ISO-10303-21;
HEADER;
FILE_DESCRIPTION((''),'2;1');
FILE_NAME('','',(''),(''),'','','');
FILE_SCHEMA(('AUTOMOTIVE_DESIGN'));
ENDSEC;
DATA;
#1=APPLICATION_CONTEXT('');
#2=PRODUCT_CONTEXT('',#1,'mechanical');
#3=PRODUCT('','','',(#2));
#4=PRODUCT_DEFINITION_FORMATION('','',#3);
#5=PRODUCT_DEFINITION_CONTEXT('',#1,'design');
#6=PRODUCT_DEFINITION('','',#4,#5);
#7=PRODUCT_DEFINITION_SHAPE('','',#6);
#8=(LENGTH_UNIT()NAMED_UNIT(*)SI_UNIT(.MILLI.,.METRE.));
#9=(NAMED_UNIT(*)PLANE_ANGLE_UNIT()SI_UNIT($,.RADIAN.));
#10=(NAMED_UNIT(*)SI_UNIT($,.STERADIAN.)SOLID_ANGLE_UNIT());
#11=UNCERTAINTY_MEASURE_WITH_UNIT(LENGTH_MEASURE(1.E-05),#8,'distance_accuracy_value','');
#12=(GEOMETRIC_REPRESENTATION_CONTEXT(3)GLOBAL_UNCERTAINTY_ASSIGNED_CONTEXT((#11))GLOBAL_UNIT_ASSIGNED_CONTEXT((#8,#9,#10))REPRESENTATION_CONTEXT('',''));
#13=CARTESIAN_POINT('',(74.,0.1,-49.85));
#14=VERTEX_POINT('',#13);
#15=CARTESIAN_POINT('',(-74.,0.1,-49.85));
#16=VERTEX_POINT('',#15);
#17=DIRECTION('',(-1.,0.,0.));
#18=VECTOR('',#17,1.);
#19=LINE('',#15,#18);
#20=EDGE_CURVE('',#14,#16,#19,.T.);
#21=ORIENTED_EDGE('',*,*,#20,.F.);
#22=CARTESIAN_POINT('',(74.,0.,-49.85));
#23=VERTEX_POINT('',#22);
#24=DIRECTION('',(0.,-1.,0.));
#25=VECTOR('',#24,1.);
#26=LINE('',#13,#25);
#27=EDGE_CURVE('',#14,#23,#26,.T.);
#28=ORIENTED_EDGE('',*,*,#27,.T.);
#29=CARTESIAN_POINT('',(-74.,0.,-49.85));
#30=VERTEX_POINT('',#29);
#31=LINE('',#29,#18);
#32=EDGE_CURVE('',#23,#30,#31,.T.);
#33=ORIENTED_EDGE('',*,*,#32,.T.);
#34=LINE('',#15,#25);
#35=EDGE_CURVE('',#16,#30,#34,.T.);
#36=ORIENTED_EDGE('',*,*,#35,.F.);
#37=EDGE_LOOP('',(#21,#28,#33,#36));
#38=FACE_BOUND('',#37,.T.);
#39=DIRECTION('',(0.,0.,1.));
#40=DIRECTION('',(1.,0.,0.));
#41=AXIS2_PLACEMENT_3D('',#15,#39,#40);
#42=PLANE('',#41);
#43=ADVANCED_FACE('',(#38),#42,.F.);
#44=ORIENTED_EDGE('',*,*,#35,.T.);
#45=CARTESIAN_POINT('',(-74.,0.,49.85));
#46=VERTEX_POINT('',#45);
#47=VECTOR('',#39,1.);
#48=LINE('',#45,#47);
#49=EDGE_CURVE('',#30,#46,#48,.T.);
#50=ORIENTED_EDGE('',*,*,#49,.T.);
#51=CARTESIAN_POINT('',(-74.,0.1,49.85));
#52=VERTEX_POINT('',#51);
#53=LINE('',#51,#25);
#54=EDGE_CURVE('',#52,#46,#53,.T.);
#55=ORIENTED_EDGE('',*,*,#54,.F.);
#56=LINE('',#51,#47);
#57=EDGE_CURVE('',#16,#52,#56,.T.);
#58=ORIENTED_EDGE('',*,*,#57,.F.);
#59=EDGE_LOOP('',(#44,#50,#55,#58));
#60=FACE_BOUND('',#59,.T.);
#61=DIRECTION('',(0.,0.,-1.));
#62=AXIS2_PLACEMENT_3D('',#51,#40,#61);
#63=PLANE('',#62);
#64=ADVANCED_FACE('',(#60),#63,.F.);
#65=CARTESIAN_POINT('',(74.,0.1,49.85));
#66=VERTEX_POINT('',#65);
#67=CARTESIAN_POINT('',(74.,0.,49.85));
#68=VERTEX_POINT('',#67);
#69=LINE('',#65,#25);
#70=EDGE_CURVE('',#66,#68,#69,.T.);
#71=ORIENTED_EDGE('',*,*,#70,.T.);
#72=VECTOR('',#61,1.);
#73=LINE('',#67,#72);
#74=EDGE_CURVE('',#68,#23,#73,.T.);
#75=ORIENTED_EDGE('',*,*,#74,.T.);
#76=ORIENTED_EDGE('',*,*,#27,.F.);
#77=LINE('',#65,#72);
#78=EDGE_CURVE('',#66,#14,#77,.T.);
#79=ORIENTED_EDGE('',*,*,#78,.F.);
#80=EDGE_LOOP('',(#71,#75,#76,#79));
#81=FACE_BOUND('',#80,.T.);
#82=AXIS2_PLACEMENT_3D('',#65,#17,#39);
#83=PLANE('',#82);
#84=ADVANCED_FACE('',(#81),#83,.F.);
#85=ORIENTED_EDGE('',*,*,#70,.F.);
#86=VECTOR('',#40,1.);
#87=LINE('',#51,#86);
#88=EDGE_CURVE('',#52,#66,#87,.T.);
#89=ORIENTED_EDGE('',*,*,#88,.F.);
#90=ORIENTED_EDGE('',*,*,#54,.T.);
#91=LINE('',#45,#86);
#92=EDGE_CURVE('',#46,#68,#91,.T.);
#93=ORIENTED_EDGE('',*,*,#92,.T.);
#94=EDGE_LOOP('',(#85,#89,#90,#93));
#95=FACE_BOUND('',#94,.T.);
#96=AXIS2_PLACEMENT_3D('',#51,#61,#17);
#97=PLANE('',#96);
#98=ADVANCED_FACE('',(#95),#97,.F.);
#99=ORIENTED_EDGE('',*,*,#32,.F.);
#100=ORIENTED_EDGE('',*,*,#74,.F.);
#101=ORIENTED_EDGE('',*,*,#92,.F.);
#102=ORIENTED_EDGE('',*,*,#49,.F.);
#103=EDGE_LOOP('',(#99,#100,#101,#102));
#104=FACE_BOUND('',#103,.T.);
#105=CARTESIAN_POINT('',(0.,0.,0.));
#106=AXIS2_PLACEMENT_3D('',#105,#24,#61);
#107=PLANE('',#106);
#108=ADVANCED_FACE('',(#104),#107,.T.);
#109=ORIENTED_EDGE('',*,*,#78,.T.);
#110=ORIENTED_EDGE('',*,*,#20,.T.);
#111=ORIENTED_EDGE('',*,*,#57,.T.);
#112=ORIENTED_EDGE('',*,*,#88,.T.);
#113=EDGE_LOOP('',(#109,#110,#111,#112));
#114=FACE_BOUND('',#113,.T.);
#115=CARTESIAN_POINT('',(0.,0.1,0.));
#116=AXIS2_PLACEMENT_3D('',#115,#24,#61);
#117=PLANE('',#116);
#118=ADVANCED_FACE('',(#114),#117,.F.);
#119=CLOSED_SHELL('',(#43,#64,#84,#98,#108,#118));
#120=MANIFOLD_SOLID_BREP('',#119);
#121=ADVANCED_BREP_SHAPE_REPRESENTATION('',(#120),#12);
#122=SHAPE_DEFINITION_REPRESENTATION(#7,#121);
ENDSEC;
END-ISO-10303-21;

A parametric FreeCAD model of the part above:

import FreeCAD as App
import Part
import Sketcher
Q = App.Units.Quantity


def add_polygon(sketch, points):
    """Adds a closed chain of lines whose ends are joined by coincident constraints."""
    first, n = sketch.GeometryCount, len(points)
    for a, b in zip(points, points[1:] + points[:1]):
        sketch.addGeometry(Part.LineSegment(App.Vector(*a, 0), App.Vector(*b, 0)), False)
    for i in range(n):
        sketch.addConstraint(Sketcher.Constraint("Coincident", first + i, 2, first + (i + 1) % n, 1))

doc = App.newDocument("Part")
body = doc.addObject("PartDesign::Body", "Body")

# Sketch on XZ plane
sketch1 = body.newObject("Sketcher::SketchObject", "Sketch")
sketch1.AttachmentSupport = (doc.getObject("XZ_Plane"), [""])
sketch1.MapMode = "FlatFace"
add_polygon(sketch1, [(-74, -50), (-74, 50), (74, 50), (74, -50)])  # lines 0-3
sketch1.addConstraint([
    Sketcher.Constraint("Vertical", 0),
    Sketcher.Constraint("Horizontal", 1),
    Sketcher.Constraint("Vertical", 2),
    Sketcher.Constraint("Horizontal", 3),
    Sketcher.Constraint("Symmetric", 0, 2, 2, 2, -1, 1),
    Sketcher.Constraint("DistanceX", 1, 1, 1, 2, Q("148 mm")),
    Sketcher.Constraint("DistanceY", 0, 1, 0, 2, Q("99.7 mm")),
])
pad1 = body.newObject("PartDesign::Pad", "Pad")
pad1.Profile = sketch1
pad1.Length = 0.1
pad1.Reversed = True

doc.recompute()
